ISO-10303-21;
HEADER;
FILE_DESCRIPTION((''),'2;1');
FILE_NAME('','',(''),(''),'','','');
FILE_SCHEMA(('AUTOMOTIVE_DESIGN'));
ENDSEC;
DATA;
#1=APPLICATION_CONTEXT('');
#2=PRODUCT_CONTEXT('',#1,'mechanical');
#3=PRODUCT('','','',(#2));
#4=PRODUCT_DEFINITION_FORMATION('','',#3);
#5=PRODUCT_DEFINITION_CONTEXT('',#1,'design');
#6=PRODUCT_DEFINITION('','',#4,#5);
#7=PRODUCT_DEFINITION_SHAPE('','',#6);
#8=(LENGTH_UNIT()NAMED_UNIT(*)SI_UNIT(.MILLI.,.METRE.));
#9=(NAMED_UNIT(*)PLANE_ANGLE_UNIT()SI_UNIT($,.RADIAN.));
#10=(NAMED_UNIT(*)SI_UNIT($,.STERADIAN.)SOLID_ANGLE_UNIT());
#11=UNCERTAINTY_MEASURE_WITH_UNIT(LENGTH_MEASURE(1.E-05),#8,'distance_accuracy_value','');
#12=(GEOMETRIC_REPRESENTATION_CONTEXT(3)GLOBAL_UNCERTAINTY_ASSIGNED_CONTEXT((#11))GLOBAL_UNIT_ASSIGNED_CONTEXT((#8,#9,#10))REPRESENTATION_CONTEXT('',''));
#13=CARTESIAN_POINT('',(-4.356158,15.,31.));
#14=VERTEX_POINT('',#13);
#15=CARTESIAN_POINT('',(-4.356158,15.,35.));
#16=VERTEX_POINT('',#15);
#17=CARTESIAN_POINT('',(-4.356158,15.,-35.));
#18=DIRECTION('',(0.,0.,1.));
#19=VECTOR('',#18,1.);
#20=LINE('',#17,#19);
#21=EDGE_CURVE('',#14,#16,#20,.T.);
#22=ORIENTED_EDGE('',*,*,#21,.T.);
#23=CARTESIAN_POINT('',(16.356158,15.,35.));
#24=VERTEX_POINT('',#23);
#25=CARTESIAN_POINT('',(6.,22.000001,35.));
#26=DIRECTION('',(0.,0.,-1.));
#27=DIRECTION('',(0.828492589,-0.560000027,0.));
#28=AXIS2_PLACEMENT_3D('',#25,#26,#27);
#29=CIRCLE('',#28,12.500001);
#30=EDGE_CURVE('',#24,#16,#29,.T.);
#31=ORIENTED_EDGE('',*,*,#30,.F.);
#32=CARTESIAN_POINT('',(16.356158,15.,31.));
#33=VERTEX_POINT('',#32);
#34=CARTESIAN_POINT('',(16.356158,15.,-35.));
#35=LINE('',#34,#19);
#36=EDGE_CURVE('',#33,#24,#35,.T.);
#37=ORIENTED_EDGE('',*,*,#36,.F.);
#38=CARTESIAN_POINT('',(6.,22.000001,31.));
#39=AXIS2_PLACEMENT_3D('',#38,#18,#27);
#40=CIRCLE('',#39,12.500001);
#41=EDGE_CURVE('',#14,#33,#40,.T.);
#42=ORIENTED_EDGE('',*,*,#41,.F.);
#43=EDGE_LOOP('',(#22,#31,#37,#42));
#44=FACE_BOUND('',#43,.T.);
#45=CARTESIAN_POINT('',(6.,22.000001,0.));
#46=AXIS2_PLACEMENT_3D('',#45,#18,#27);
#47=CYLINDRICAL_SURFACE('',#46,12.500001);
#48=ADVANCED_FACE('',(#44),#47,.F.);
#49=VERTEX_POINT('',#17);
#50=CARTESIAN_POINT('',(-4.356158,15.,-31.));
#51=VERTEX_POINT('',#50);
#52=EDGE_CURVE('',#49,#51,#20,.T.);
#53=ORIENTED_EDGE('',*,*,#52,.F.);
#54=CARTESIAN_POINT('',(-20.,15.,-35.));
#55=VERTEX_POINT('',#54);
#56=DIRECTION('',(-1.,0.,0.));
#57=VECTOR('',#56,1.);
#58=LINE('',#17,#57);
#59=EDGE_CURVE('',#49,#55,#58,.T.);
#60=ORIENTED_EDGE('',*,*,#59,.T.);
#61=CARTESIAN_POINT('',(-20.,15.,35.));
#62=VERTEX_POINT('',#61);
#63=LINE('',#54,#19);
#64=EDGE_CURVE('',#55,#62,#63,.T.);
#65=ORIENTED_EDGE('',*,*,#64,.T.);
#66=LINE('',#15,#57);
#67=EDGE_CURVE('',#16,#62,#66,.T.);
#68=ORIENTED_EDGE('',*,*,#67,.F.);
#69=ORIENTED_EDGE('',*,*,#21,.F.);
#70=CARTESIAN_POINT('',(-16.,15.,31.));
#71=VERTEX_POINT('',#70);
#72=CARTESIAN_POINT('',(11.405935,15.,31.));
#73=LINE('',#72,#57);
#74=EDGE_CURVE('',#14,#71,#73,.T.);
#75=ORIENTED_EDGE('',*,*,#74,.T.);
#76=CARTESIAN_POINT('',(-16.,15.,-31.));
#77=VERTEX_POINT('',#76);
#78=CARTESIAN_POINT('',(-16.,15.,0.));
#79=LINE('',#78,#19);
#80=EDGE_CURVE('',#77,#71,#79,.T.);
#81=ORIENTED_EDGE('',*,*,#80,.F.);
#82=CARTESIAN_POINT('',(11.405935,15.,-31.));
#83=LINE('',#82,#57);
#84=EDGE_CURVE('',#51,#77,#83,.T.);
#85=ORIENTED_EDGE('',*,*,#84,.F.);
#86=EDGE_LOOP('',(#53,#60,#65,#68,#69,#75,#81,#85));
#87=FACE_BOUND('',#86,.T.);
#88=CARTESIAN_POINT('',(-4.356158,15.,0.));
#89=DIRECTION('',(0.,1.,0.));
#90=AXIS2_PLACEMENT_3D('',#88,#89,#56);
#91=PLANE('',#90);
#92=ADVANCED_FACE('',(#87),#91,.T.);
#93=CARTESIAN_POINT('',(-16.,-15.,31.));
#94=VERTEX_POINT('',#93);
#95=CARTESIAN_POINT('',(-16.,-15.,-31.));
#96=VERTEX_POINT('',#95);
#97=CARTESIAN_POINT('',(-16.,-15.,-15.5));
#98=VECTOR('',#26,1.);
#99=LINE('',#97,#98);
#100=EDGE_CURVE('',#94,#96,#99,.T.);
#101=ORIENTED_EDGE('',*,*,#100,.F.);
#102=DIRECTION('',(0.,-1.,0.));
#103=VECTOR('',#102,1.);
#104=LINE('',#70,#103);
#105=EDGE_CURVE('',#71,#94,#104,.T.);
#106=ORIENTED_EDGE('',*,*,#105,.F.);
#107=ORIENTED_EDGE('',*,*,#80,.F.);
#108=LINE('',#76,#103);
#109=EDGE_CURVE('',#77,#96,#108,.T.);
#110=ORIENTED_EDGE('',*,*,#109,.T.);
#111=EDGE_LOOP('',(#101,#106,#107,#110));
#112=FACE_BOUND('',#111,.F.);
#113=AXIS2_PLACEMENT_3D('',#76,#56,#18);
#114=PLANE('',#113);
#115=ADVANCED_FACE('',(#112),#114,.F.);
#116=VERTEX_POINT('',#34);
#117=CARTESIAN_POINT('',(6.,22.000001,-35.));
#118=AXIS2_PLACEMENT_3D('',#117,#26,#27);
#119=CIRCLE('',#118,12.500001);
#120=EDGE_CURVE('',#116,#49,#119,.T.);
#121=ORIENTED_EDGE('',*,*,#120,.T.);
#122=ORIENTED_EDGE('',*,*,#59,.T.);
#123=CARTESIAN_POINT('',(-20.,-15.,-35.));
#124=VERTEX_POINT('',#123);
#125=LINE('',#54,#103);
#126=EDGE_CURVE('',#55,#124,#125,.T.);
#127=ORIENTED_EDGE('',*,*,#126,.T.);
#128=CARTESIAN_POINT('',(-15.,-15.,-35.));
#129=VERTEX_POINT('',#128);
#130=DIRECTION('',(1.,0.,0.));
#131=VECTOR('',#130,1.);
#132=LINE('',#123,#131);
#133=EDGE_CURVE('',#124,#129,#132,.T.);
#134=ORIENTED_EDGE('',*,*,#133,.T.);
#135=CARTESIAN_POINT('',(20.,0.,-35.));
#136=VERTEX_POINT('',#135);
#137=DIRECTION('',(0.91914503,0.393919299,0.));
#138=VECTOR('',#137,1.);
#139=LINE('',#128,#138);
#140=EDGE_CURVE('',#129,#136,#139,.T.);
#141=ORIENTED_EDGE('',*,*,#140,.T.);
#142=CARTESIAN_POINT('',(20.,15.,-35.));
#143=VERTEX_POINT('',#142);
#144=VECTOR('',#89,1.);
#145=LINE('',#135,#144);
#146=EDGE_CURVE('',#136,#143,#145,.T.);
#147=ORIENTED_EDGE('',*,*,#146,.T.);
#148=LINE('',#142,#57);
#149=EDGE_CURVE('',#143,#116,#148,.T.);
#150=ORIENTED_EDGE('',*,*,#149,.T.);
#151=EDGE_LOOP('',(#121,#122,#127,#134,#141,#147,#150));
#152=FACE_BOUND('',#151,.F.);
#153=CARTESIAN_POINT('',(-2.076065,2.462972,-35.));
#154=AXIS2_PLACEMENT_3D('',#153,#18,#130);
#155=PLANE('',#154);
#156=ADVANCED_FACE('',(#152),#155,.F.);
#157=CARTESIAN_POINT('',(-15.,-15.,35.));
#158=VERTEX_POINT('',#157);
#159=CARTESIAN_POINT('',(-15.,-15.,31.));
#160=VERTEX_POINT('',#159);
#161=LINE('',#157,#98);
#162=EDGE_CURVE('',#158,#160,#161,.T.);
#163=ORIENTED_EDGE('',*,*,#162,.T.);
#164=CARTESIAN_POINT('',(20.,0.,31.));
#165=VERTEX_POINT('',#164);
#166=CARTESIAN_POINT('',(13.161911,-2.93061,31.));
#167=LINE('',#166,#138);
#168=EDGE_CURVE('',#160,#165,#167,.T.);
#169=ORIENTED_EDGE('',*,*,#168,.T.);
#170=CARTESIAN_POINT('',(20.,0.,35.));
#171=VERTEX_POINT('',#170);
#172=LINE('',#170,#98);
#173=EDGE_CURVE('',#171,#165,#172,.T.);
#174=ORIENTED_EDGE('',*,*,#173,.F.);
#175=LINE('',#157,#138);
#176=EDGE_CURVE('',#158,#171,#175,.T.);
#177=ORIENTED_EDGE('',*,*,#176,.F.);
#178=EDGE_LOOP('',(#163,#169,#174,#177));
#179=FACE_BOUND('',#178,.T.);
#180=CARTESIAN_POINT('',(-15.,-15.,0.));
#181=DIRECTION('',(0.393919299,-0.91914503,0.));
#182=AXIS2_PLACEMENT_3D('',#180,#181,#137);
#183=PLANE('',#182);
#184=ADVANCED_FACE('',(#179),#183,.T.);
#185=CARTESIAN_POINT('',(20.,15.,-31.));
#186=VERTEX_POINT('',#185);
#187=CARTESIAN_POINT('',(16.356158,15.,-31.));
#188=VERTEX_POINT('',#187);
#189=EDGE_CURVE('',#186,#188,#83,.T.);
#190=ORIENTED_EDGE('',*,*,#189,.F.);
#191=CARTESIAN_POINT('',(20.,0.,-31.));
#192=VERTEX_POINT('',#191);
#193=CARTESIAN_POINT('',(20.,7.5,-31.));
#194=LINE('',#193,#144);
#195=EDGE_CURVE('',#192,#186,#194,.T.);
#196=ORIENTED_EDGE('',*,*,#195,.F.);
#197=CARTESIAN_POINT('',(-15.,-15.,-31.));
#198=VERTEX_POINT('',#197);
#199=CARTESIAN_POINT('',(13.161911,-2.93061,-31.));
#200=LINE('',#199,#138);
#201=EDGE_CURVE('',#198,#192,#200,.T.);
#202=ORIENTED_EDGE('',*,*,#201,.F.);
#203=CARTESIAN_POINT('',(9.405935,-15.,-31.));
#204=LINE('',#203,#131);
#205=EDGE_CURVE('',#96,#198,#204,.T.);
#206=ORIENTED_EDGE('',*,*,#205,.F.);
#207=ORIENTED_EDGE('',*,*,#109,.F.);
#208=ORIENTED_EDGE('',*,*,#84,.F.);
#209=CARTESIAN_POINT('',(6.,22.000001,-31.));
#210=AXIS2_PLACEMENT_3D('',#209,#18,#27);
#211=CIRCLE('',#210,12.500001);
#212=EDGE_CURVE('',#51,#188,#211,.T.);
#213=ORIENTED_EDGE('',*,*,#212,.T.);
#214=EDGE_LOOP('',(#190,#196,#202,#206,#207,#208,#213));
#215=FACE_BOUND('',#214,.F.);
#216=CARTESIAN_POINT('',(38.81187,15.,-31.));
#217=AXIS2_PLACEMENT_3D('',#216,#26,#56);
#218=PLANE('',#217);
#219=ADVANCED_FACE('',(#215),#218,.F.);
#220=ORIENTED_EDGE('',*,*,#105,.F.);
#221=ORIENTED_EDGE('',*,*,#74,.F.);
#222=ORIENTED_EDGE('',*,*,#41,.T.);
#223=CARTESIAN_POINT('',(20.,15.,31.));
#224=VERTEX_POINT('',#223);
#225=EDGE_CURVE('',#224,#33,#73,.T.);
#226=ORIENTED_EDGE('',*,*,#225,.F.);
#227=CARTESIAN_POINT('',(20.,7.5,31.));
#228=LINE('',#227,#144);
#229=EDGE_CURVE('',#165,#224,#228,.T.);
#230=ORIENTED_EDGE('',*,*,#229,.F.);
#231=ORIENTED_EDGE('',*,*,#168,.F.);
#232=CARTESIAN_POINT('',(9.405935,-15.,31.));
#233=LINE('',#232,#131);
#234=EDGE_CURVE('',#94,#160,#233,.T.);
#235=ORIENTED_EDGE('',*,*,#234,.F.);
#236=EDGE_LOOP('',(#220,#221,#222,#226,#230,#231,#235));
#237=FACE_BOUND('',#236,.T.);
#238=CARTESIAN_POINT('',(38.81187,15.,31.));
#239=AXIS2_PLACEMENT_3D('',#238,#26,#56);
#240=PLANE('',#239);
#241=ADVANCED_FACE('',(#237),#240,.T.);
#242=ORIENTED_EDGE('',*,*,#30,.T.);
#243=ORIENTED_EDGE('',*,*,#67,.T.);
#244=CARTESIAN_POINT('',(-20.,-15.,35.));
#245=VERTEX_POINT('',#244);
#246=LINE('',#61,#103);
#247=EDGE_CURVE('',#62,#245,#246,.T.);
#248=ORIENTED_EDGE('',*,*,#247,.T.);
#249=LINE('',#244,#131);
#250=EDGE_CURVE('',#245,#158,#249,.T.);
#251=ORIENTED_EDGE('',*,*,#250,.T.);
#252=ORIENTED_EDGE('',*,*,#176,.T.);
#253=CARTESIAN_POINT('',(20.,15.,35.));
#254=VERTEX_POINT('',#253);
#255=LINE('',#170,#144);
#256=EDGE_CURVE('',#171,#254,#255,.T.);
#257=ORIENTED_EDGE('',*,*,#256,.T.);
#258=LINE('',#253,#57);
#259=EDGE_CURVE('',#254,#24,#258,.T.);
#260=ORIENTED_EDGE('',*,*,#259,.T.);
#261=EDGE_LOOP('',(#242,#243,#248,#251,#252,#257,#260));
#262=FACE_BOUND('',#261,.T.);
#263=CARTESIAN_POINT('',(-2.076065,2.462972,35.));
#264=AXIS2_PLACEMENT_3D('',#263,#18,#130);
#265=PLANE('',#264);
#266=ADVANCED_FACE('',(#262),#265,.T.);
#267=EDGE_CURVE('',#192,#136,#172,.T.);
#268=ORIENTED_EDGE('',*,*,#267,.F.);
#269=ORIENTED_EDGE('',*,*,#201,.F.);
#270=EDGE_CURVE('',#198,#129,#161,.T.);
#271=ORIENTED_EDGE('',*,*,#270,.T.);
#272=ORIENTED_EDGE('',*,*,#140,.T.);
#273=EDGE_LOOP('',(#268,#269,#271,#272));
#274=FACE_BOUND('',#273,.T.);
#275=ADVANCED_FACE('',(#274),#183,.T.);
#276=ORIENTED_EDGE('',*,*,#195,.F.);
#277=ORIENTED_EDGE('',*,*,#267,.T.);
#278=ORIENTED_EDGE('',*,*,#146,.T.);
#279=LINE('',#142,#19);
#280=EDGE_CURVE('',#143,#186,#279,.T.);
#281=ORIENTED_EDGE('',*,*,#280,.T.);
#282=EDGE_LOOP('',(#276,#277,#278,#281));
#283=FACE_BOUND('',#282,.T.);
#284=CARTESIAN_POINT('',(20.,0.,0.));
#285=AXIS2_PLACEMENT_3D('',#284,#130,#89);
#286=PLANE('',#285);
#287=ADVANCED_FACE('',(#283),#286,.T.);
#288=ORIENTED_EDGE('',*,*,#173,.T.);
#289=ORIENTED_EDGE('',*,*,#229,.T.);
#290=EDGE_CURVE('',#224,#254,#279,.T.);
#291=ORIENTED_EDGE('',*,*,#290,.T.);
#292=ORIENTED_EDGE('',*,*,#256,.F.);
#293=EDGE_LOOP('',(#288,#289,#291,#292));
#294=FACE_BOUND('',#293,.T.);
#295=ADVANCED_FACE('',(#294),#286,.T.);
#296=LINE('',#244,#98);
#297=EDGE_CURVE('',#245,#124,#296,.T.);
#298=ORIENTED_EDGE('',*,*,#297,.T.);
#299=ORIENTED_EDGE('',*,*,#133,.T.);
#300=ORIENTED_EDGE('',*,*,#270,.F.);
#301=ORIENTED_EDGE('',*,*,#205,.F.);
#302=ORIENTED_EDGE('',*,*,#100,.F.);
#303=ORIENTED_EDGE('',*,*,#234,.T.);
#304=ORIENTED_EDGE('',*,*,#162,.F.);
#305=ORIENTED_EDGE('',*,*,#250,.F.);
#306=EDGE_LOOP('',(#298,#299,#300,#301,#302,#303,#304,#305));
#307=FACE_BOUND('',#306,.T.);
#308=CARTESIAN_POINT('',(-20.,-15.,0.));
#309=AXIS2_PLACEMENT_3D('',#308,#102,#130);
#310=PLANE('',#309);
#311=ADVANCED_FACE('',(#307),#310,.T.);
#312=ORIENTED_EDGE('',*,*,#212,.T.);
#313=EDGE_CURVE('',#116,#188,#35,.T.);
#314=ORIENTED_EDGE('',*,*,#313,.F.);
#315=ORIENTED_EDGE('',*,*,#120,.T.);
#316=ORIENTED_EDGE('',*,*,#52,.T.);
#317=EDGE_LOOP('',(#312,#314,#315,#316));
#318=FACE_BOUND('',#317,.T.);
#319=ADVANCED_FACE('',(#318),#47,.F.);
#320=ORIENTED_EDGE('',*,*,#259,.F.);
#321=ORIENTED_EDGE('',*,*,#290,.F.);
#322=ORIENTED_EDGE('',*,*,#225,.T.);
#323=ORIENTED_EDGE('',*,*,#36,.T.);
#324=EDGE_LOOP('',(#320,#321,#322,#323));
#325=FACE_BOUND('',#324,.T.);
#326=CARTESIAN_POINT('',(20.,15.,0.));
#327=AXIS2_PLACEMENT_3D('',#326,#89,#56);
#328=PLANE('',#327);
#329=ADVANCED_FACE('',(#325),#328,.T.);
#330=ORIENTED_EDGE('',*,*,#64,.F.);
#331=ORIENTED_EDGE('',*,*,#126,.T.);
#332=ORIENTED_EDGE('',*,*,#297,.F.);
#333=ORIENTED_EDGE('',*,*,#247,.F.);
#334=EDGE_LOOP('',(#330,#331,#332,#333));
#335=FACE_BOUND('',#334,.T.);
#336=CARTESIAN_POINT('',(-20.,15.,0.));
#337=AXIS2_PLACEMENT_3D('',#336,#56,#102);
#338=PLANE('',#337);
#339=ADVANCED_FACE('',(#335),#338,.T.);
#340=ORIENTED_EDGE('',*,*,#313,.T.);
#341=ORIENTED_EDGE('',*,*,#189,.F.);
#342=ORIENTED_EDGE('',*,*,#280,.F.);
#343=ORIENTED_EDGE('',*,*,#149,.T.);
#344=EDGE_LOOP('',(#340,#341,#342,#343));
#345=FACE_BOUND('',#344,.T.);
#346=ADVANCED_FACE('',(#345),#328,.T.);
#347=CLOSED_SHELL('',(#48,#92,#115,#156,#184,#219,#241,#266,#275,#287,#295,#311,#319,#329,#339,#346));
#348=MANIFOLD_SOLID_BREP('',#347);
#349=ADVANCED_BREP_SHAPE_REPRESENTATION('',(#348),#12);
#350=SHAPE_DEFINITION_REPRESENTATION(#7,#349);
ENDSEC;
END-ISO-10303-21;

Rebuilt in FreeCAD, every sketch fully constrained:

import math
import FreeCAD as App
import Part
import Sketcher
Q = App.Units.Quantity

doc = App.newDocument("Part")
body = doc.addObject("PartDesign::Body", "Body")

sketch1 = body.newObject("Sketcher::SketchObject", "Sketch")
sketch1.AttachmentSupport = (doc.getObject("XY_Plane"), [""])
sketch1.MapMode = "FlatFace"
sketch1.addGeometry(Part.LineSegment(App.Vector(20, 0, 0), App.Vector(20, 15, 0)), False)
sketch1.addGeometry(Part.LineSegment(App.Vector(20, 15, 0), App.Vector(16.4, 15, 0)), False)
sketch1.addGeometry(Part.ArcOfCircle(Part.Circle(App.Vector(6, 22, 0), App.Vector(0, 0, 1), 12.5), math.radians(-146), math.radians(-34)), False)
sketch1.addGeometry(Part.LineSegment(App.Vector(-4.4, 15, 0), App.Vector(-20, 15, 0)), False)
sketch1.addGeometry(Part.LineSegment(App.Vector(-20, 15, 0), App.Vector(-20, -15, 0)), False)
sketch1.addGeometry(Part.LineSegment(App.Vector(-20, -15, 0), App.Vector(-15, -15, 0)), False)
sketch1.addGeometry(Part.LineSegment(App.Vector(-15, -15, 0), App.Vector(20, 0, 0)), False)
sketch1.addConstraint(Sketcher.Constraint("Coincident", 0, 2, 1, 1))
sketch1.addConstraint(Sketcher.Constraint("Coincident", 1, 2, 2, 2))
sketch1.addConstraint(Sketcher.Constraint("Coincident", 2, 1, 3, 1))
sketch1.addConstraint(Sketcher.Constraint("Coincident", 3, 2, 4, 1))
sketch1.addConstraint(Sketcher.Constraint("Coincident", 4, 2, 5, 1))
sketch1.addConstraint(Sketcher.Constraint("Coincident", 5, 2, 6, 1))
sketch1.addConstraint(Sketcher.Constraint("Coincident", 6, 2, 0, 1))
sketch1.addConstraint(Sketcher.Constraint("Vertical", 0))
sketch1.addConstraint(Sketcher.Constraint("Horizontal", 1))
sketch1.addConstraint(Sketcher.Constraint("Horizontal", 3))
sketch1.addConstraint(Sketcher.Constraint("Vertical", 4))
sketch1.addConstraint(Sketcher.Constraint("Horizontal", 5))
sketch1.addConstraint(Sketcher.Constraint("Symmetric", 0, 2, 4, 2, -1, 1))
sketch1.addConstraint(Sketcher.Constraint("PointOnObject", 6, 2, -1))
sketch1.addConstraint(Sketcher.Constraint("Horizontal", 1, 2, 2, 1))
sketch1.addConstraint(Sketcher.Constraint("Radius", 2, Q("12.500001 mm")))
sketch1.addConstraint(Sketcher.Constraint("DistanceX", 5, 1, 5, 2, Q("5 mm")))
sketch1.addConstraint(Sketcher.Constraint("DistanceY", 0, 1, 0, 2, Q("15 mm")))
sketch1.addConstraint(Sketcher.Constraint("DistanceX", -1, 1, 2, 3, Q("6 mm")))
sketch1.addConstraint(Sketcher.Constraint("DistanceY", -1, 1, 2, 3, Q("22.000001 mm")))
sketch1.addConstraint(Sketcher.Constraint("DistanceX", -1, 1, 0, 2, Q("20 mm")))
pad1 = body.newObject("PartDesign::Pad", "Pad")
pad1.Profile = sketch1
pad1.Length = 70
pad1.Midplane = True

sketch2 = body.newObject("Sketcher::SketchObject", "Sketch001")
sketch2.AttachmentSupport = (doc.getObject("XZ_Plane"), [""])
sketch2.MapMode = "FlatFace"
sketch2.AttachmentOffset = App.Placement(App.Vector(0, 0, -15), App.Rotation())
sketch2.addGeometry(Part.LineSegment(App.Vector(39, 31, 0), App.Vector(39, -31, 0)), False)
sketch2.addGeometry(Part.LineSegment(App.Vector(39, -31, 0), App.Vector(-16, -31, 0)), False)
sketch2.addGeometry(Part.LineSegment(App.Vector(-16, -31, 0), App.Vector(-16, 31, 0)), False)
sketch2.addGeometry(Part.LineSegment(App.Vector(-16, 31, 0), App.Vector(39, 31, 0)), False)
sketch2.addConstraint(Sketcher.Constraint("Coincident", 0, 2, 1, 1))
sketch2.addConstraint(Sketcher.Constraint("Coincident", 1, 2, 2, 1))
sketch2.addConstraint(Sketcher.Constraint("Coincident", 2, 2, 3, 1))
sketch2.addConstraint(Sketcher.Constraint("Coincident", 3, 2, 0, 1))
sketch2.addConstraint(Sketcher.Constraint("Vertical", 0))
sketch2.addConstraint(Sketcher.Constraint("Horizontal", 1))
sketch2.addConstraint(Sketcher.Constraint("Vertical", 2))
sketch2.addConstraint(Sketcher.Constraint("Horizontal", 3))
sketch2.addConstraint(Sketcher.Constraint("DistanceY", 0, 2, 0, 1, Q("62 mm")))
sketch2.addConstraint(Sketcher.Constraint("DistanceY", 0, 2, -1, 1, Q("31 mm")))
sketch2.addConstraint(Sketcher.Constraint("DistanceX", 1, 2, -1, 1, Q("16 mm")))
sketch2.addConstraint(Sketcher.Constraint("DistanceX", 1, 2, 1, 1, Q("54.81187 mm")))
pocket1 = body.newObject("PartDesign::Pocket", "Pocket")
pocket1.Profile = sketch2
pocket1.Length = 40
pocket1.Reversed = True

doc.recompute()
